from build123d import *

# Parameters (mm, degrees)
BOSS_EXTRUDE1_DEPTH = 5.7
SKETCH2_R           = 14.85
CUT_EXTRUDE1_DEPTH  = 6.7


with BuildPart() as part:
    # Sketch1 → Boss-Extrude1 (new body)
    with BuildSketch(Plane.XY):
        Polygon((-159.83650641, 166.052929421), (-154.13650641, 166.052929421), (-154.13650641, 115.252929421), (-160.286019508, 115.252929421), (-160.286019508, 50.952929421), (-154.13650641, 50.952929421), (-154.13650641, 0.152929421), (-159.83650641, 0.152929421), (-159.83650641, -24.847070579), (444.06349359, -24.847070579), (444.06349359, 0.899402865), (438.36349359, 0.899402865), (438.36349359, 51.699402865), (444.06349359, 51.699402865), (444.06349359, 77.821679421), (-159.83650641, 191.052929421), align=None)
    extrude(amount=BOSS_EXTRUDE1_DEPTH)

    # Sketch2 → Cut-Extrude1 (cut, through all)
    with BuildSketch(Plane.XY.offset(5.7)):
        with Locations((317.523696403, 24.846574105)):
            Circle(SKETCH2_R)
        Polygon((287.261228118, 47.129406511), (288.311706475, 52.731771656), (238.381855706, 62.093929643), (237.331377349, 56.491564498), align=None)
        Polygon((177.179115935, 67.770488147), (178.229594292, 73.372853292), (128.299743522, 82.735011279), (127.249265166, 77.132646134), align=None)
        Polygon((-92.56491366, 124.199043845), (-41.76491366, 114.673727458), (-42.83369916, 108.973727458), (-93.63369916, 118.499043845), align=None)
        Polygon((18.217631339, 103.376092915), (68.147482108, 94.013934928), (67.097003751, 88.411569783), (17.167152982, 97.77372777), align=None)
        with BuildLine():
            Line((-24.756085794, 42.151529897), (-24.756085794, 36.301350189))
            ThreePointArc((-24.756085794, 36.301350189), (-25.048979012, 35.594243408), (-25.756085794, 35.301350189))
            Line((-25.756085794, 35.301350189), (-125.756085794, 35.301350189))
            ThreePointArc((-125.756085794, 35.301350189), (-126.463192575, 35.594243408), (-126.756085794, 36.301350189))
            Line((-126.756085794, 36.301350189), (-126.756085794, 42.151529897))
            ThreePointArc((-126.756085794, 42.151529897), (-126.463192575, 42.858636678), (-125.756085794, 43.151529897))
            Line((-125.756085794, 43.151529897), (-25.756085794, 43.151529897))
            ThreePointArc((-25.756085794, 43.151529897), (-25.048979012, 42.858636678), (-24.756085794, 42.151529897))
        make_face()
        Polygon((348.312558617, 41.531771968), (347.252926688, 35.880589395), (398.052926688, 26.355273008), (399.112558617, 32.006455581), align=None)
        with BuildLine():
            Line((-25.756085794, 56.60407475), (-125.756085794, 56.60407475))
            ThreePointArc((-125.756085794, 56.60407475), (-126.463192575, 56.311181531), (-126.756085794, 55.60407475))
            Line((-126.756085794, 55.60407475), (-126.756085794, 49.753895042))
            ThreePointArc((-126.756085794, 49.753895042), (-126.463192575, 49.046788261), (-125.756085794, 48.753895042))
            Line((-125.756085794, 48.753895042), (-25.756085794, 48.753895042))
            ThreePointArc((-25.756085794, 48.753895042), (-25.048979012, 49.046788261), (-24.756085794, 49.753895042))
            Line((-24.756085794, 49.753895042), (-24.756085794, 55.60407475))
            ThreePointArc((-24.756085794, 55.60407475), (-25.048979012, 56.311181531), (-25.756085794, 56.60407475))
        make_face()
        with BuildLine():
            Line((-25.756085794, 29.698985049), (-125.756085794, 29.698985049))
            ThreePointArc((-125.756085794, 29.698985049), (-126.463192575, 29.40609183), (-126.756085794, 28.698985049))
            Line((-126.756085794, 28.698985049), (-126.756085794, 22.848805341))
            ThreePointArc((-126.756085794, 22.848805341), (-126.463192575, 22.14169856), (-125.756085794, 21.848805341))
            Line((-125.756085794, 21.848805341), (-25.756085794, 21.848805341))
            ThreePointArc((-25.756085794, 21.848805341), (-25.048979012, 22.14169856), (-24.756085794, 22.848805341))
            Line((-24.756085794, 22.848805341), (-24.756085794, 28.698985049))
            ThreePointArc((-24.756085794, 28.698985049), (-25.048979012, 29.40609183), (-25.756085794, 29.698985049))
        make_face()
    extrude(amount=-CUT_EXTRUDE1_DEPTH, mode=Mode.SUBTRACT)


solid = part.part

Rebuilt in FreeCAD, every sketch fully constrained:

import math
import FreeCAD as App
import Part
import Sketcher

V = App.Vector
Q = App.Units.Quantity

doc = App.newDocument("Part")
params = doc.addObject("Spreadsheet::Sheet", "Params")
for row, (alias, value) in enumerate([
    ("sketch1_height", "25 mm"),
    ("sketch1_width", "5.7 mm"),
    ("sketch1_width2", "603.9 mm"),
    ("sketch1_height2", "50.8 mm"),
    ("sketch1_height3", "64.3 mm"),
    ("pad1_length", "5.7 mm"),
    ("sketch2_radius", "1 mm"),
    ("sketch2_diameter", "29.7 mm"),
    ("sketch2_width", "100 mm"),
    ("sketch2_length", "5.7 mm"),
    ("sketch2_length2", "50.8 mm"),
], start=1):
    params.set(f"A{row}", alias)
    params.set(f"B{row}", "=" + value)
    params.setAlias(f"B{row}", alias)

body = doc.addObject("PartDesign::Body", "Body")

sketch1 = body.newObject("Sketcher::SketchObject", "Sketch")
sketch1.AttachmentSupport = (doc.getObject("XY_Plane"), [""])
sketch1.MapMode = "FlatFace"
sketch1.addGeometry([
    Part.LineSegment(V(-160, 166, 0), V(-154, 166, 0)),
    Part.LineSegment(V(-154, 166, 0), V(-154, 115, 0)),
    Part.LineSegment(V(-154, 115, 0), V(-160, 115, 0)),
    Part.LineSegment(V(-160, 115, 0), V(-160, 51, 0)),
    Part.LineSegment(V(-160, 51, 0), V(-154, 51, 0)),
    Part.LineSegment(V(-154, 51, 0), V(-154, 0, 0)),
    Part.LineSegment(V(-154, 0, 0), V(-160, 0, 0)),
    Part.LineSegment(V(-160, 0, 0), V(-160, -25, 0)),
    Part.LineSegment(V(-160, -25, 0), V(444, -25, 0)),
    Part.LineSegment(V(444, -25, 0), V(444, 1, 0)),
    Part.LineSegment(V(444, 1, 0), V(438, 1, 0)),
    Part.LineSegment(V(438, 1, 0), V(438, 52, 0)),
    Part.LineSegment(V(438, 52, 0), V(444, 52, 0)),
    Part.LineSegment(V(444, 52, 0), V(444, 78, 0)),
    Part.LineSegment(V(444, 78, 0), V(-160, 191, 0)),
    Part.LineSegment(V(-160, 191, 0), V(-160, 166, 0)),
], False)
sketch1.addConstraint([
    Sketcher.Constraint("Coincident", 0, 2, 1, 1),
    Sketcher.Constraint("Coincident", 1, 2, 2, 1),
    Sketcher.Constraint("Coincident", 2, 2, 3, 1),
    Sketcher.Constraint("Coincident", 3, 2, 4, 1),
    Sketcher.Constraint("Coincident", 4, 2, 5, 1),
    Sketcher.Constraint("Coincident", 5, 2, 6, 1),
    Sketcher.Constraint("Coincident", 6, 2, 7, 1),
    Sketcher.Constraint("Coincident", 7, 2, 8, 1),
    Sketcher.Constraint("Coincident", 8, 2, 9, 1),
    Sketcher.Constraint("Coincident", 9, 2, 10, 1),
    Sketcher.Constraint("Coincident", 10, 2, 11, 1),
    Sketcher.Constraint("Coincident", 11, 2, 12, 1),
    Sketcher.Constraint("Coincident", 12, 2, 13, 1),
    Sketcher.Constraint("Coincident", 13, 2, 14, 1),
    Sketcher.Constraint("Coincident", 14, 2, 15, 1),
    Sketcher.Constraint("Coincident", 15, 2, 0, 1),
    Sketcher.Constraint("Horizontal", 0),
    Sketcher.Constraint("Vertical", 1),
    Sketcher.Constraint("Horizontal", 2),
    Sketcher.Constraint("Vertical", 3),
    Sketcher.Constraint("Horizontal", 4),
    Sketcher.Constraint("Vertical", 5),
    Sketcher.Constraint("Horizontal", 6),
    Sketcher.Constraint("Vertical", 7),
    Sketcher.Constraint("Horizontal", 8),
    Sketcher.Constraint("Vertical", 9),
    Sketcher.Constraint("Horizontal", 10),
    Sketcher.Constraint("Vertical", 11),
    Sketcher.Constraint("Horizontal", 12),
    Sketcher.Constraint("Vertical", 13),
    Sketcher.Constraint("Vertical", 15),
    Sketcher.Constraint("Vertical", 1, 2, 4, 2),
    Sketcher.Constraint("Vertical", 9, 2, 12, 2),
    Sketcher.Constraint("Vertical", 7, 2, 14, 2),
    Sketcher.Constraint("Equal", 6, 10),
    Sketcher.Constraint("Equal", 1, 5),
    Sketcher.Constraint("Equal", 5, 11),
    Sketcher.Constraint("Equal", 7, 15),
    Sketcher.Constraint("DistanceY", 7, 2, 7, 1, Q("25 mm")),
    Sketcher.Constraint("DistanceX", 0, 1, 0, 2, Q("5.7 mm")),
    Sketcher.Constraint("DistanceX", 8, 1, 8, 2, Q("603.9 mm")),
    Sketcher.Constraint("DistanceY", 1, 2, 1, 1, Q("50.8 mm")),
    Sketcher.Constraint("DistanceY", 3, 2, 3, 1, Q("64.3 mm")),
    Sketcher.Constraint("DistanceX", 2, 2, 2, 1, Q("6.149513 mm")),
    Sketcher.Constraint("DistanceY", 9, 1, 9, 2, Q("25.746473 mm")),
    Sketcher.Constraint("DistanceY", 13, 1, 13, 2, Q("26.122277 mm")),
    Sketcher.Constraint("DistanceY", -1, 1, 0, 2, Q("166.052929 mm")),
    Sketcher.Constraint("DistanceX", 2, 2, -1, 1, Q("160.28602 mm")),
])
sketch1.setExpression("Constraints[38]", "Params.sketch1_height")
sketch1.setExpression("Constraints[39]", "Params.sketch1_width")
sketch1.setExpression("Constraints[40]", "Params.sketch1_width2")
sketch1.setExpression("Constraints[41]", "Params.sketch1_height2")
sketch1.setExpression("Constraints[42]", "Params.sketch1_height3")
pad1 = body.newObject("PartDesign::Pad", "Pad")
pad1.Profile = sketch1
pad1.setExpression("Length", "Params.pad1_length")

sketch2 = body.newObject("Sketcher::SketchObject", "Sketch001")
sketch2.AttachmentSupport = (doc.getObject("XY_Plane"), [""])
sketch2.MapMode = "FlatFace"
sketch2.AttachmentOffset = App.Placement(V(0, 0, 5.7), App.Rotation())
sketch2.addGeometry([
    Part.Circle(V(317.5, 24.8, 0), V(0, 0, 1), 14.8),
    Part.LineSegment(V(287.3, 47.1, 0), V(288.3, 52.7, 0)),
    Part.LineSegment(V(288.3, 52.7, 0), V(238.4, 62.1, 0)),
    Part.LineSegment(V(238.4, 62.1, 0), V(237.3, 56.5, 0)),
    Part.LineSegment(V(237.3, 56.5, 0), V(287.3, 47.1, 0)),
    Part.LineSegment(V(177.2, 67.8, 0), V(178.2, 73.4, 0)),
    Part.LineSegment(V(178.2, 73.4, 0), V(128.3, 82.7, 0)),
    Part.LineSegment(V(128.3, 82.7, 0), V(127.2, 77.1, 0)),
    Part.LineSegment(V(127.2, 77.1, 0), V(177.2, 67.8, 0)),
    Part.LineSegment(V(-41.8, 114.7, 0), V(-92.6, 124.2, 0)),
    Part.LineSegment(V(-92.6, 124.2, 0), V(-93.6, 118.5, 0)),
    Part.LineSegment(V(-93.6, 118.5, 0), V(-42.8, 109, 0)),
    Part.LineSegment(V(-42.8, 109, 0), V(-41.8, 114.7, 0)),
    Part.LineSegment(V(68.1, 94, 0), V(18.2, 103.4, 0)),
    Part.LineSegment(V(18.2, 103.4, 0), V(17.2, 97.8, 0)),
    Part.LineSegment(V(17.2, 97.8, 0), V(67.1, 88.4, 0)),
    Part.LineSegment(V(67.1, 88.4, 0), V(68.1, 94, 0)),
    Part.LineSegment(V(-24.8, 36.3, 0), V(-24.8, 42.2, 0)),
    Part.ArcOfCircle(Part.Circle(V(-25.8, 42.2, 0), V(0, 0, 1), 1), math.radians(0), math.radians(90)),
    Part.LineSegment(V(-25.8, 43.2, 0), V(-125.8, 43.2, 0)),
    Part.ArcOfCircle(Part.Circle(V(-125.8, 42.2, 0), V(0, 0, 1), 1), math.radians(90), math.radians(180)),
    Part.LineSegment(V(-126.8, 42.2, 0), V(-126.8, 36.3, 0)),
    Part.ArcOfCircle(Part.Circle(V(-125.8, 36.3, 0), V(0, 0, 1), 1), math.radians(-180), math.radians(-90)),
    Part.LineSegment(V(-125.8, 35.3, 0), V(-25.8, 35.3, 0)),
    Part.ArcOfCircle(Part.Circle(V(-25.8, 36.3, 0), V(0, 0, 1), 1), math.radians(-90), math.radians(0)),
    Part.LineSegment(V(348.3, 41.5, 0), V(347.3, 35.9, 0)),
    Part.LineSegment(V(347.3, 35.9, 0), V(398.1, 26.4, 0)),
    Part.LineSegment(V(398.1, 26.4, 0), V(399.1, 32, 0)),
    Part.LineSegment(V(399.1, 32, 0), V(348.3, 41.5, 0)),
    Part.LineSegment(V(-25.8, 56.6, 0), V(-125.8, 56.6, 0)),
    Part.ArcOfCircle(Part.Circle(V(-125.8, 55.6, 0), V(0, 0, 1), 1), math.radians(90), math.radians(180)),
    Part.LineSegment(V(-126.8, 55.6, 0), V(-126.8, 49.8, 0)),
    Part.ArcOfCircle(Part.Circle(V(-125.8, 49.8, 0), V(0, 0, 1), 1), math.radians(-180), math.radians(-90)),
    Part.LineSegment(V(-125.8, 48.8, 0), V(-25.8, 48.8, 0)),
    Part.ArcOfCircle(Part.Circle(V(-25.8, 49.8, 0), V(0, 0, 1), 1), math.radians(-90), math.radians(0)),
    Part.LineSegment(V(-24.8, 49.8, 0), V(-24.8, 55.6, 0)),
    Part.ArcOfCircle(Part.Circle(V(-25.8, 55.6, 0), V(0, 0, 1), 1), math.radians(0), math.radians(90)),
    Part.LineSegment(V(-25.8, 29.7, 0), V(-125.8, 29.7, 0)),
    Part.ArcOfCircle(Part.Circle(V(-125.8, 28.7, 0), V(0, 0, 1), 1), math.radians(90), math.radians(180)),
    Part.LineSegment(V(-126.8, 28.7, 0), V(-126.8, 22.8, 0)),
    Part.ArcOfCircle(Part.Circle(V(-125.8, 22.8, 0), V(0, 0, 1), 1), math.radians(-180), math.radians(-90)),
    Part.LineSegment(V(-125.8, 21.8, 0), V(-25.8, 21.8, 0)),
    Part.ArcOfCircle(Part.Circle(V(-25.8, 22.8, 0), V(0, 0, 1), 1), math.radians(-90), math.radians(0)),
    Part.LineSegment(V(-24.8, 22.8, 0), V(-24.8, 28.7, 0)),
    Part.ArcOfCircle(Part.Circle(V(-25.8, 28.7, 0), V(0, 0, 1), 1), math.radians(0), math.radians(90)),
], False)
sketch2.addConstraint([
    Sketcher.Constraint("Coincident", 1, 2, 2, 1),
    Sketcher.Constraint("Coincident", 2, 2, 3, 1),
    Sketcher.Constraint("Coincident", 3, 2, 4, 1),
    Sketcher.Constraint("Coincident", 4, 2, 1, 1),
    Sketcher.Constraint("Coincident", 5, 2, 6, 1),
    Sketcher.Constraint("Coincident", 6, 2, 7, 1),
    Sketcher.Constraint("Coincident", 7, 2, 8, 1),
    Sketcher.Constraint("Coincident", 8, 2, 5, 1),
    Sketcher.Constraint("Coincident", 9, 2, 10, 1),
    Sketcher.Constraint("Coincident", 10, 2, 11, 1),
    Sketcher.Constraint("Coincident", 11, 2, 12, 1),
    Sketcher.Constraint("Coincident", 12, 2, 9, 1),
    Sketcher.Constraint("Coincident", 13, 2, 14, 1),
    Sketcher.Constraint("Coincident", 14, 2, 15, 1),
    Sketcher.Constraint("Coincident", 15, 2, 16, 1),
    Sketcher.Constraint("Coincident", 16, 2, 13, 1),
    Sketcher.Constraint("Tangent", 17, 2, 18, 1),
    Sketcher.Constraint("Tangent", 18, 2, 19, 1),
    Sketcher.Constraint("Tangent", 19, 2, 20, 1),
    Sketcher.Constraint("Tangent", 20, 2, 21, 1),
    Sketcher.Constraint("Tangent", 21, 2, 22, 1),
    Sketcher.Constraint("Tangent", 22, 2, 23, 1),
    Sketcher.Constraint("Tangent", 23, 2, 24, 1),
    Sketcher.Constraint("Tangent", 24, 2, 17, 1),
    Sketcher.Constraint("Coincident", 25, 2, 26, 1),
    Sketcher.Constraint("Coincident", 26, 2, 27, 1),
    Sketcher.Constraint("Coincident", 27, 2, 28, 1),
    Sketcher.Constraint("Coincident", 28, 2, 25, 1),
    Sketcher.Constraint("Tangent", 29, 2, 30, 1),
    Sketcher.Constraint("Tangent", 30, 2, 31, 1),
    Sketcher.Constraint("Tangent", 31, 2, 32, 1),
    Sketcher.Constraint("Tangent", 32, 2, 33, 1),
    Sketcher.Constraint("Tangent", 33, 2, 34, 1),
    Sketcher.Constraint("Tangent", 34, 2, 35, 1),
    Sketcher.Constraint("Tangent", 35, 2, 36, 1),
    Sketcher.Constraint("Tangent", 36, 2, 29, 1),
    Sketcher.Constraint("Tangent", 37, 2, 38, 1),
    Sketcher.Constraint("Tangent", 38, 2, 39, 1),
    Sketcher.Constraint("Tangent", 39, 2, 40, 1),
    Sketcher.Constraint("Tangent", 40, 2, 41, 1),
    Sketcher.Constraint("Tangent", 41, 2, 42, 1),
    Sketcher.Constraint("Tangent", 42, 2, 43, 1),
    Sketcher.Constraint("Tangent", 43, 2, 44, 1),
    Sketcher.Constraint("Tangent", 44, 2, 37, 1),
    Sketcher.Constraint("Vertical", 17),
    Sketcher.Constraint("Horizontal", 19),
    Sketcher.Constraint("Vertical", 21),
    Sketcher.Constraint("Horizontal", 23),
    Sketcher.Constraint("Horizontal", 29),
    Sketcher.Constraint("Vertical", 31),
    Sketcher.Constraint("Horizontal", 33),
    Sketcher.Constraint("Vertical", 35),
    Sketcher.Constraint("Horizontal", 37),
    Sketcher.Constraint("Vertical", 39),
    Sketcher.Constraint("Horizontal", 41),
    Sketcher.Constraint("Vertical", 43),
    Sketcher.Constraint("Equal", 18, 20),
    Sketcher.Constraint("Equal", 20, 22),
    Sketcher.Constraint("Equal", 22, 24),
    Sketcher.Constraint("Equal", 24, 30),
    Sketcher.Constraint("Equal", 30, 32),
    Sketcher.Constraint("Equal", 32, 34),
    Sketcher.Constraint("Equal", 34, 36),
    Sketcher.Constraint("Equal", 36, 38),
    Sketcher.Constraint("Equal", 38, 40),
    Sketcher.Constraint("Equal", 40, 42),
    Sketcher.Constraint("Equal", 42, 44),
    Sketcher.Constraint("Perpendicular", 1, 2),
    Sketcher.Constraint("Perpendicular", 2, 3),
    Sketcher.Constraint("Perpendicular", 3, 4),
    Sketcher.Constraint("Perpendicular", 4, 5),
    Sketcher.Constraint("Perpendicular", 5, 6),
    Sketcher.Constraint("Perpendicular", 6, 7),
    Sketcher.Constraint("Perpendicular", 7, 8),
    Sketcher.Constraint("Parallel", 8, 9),
    Sketcher.Constraint("Perpendicular", 9, 10),
    Sketcher.Constraint("Perpendicular", 10, 11),
    Sketcher.Constraint("Perpendicular", 11, 12),
    Sketcher.Constraint("Perpendicular", 12, 13),
    Sketcher.Constraint("Perpendicular", 13, 14),
    Sketcher.Constraint("Perpendicular", 14, 15),
    Sketcher.Constraint("Perpendicular", 15, 16),
    Sketcher.Constraint("Parallel", 16, 25),
    Sketcher.Constraint("Perpendicular", 25, 26),
    Sketcher.Constraint("Perpendicular", 26, 27),
    Sketcher.Constraint("Perpendicular", 27, 28),
    Sketcher.Constraint("Vertical", 22, 3, 30, 3),
    Sketcher.Constraint("Vertical", 24, 3, 34, 3),
    Sketcher.Constraint("Vertical", 32, 3, 38, 3),
    Sketcher.Constraint("Vertical", 36, 3, 42, 3),
    Sketcher.Constraint("Equal", 21, 31),
    Sketcher.Constraint("Equal", 35, 39),
    Sketcher.Constraint("Equal", 3, 5),
    Sketcher.Constraint("Equal", 4, 6),
    Sketcher.Constraint("Equal", 8, 13),
    Sketcher.Constraint("Equal", 7, 14),
    Sketcher.Constraint("Equal", 11, 26),
    Sketcher.Constraint("Radius", 18, Q("1 mm")),
    Sketcher.Constraint("Diameter", 0, Q("29.7 mm")),
    Sketcher.Constraint("DistanceX", 19, 2, 19, 1, Q("100 mm")),
    Sketcher.Constraint("Distance", 1, Q("5.7 mm")),
    Sketcher.Constraint("Distance", 2, Q("50.8 mm")),
    Sketcher.Constraint("Angle", 1, Q("79.38 deg")),
    Sketcher.Constraint("DistanceY", 10, 2, 9, 2, Q("5.7 mm")),
    Sketcher.Constraint("DistanceX", 10, 2, 11, 2, Q("50.8 mm")),
    Sketcher.Constraint("DistanceY", 14, 2, 11, 2, Q("11.2 mm")),
    Sketcher.Constraint("DistanceY", 28, 2, 1, 2, Q("11.2 mm")),
    Sketcher.Constraint("DistanceY", 17, 1, 17, 2, Q("5.85018 mm")),
    Sketcher.Constraint("DistanceX", 10, 2, -1, 1, Q("93.633699 mm")),
    Sketcher.Constraint("DistanceY", 0, 3, 30, 3, Q("30.757501 mm")),
    Sketcher.Constraint("DistanceY", 18, 3, 2, 2, Q("19.9424 mm")),
    Sketcher.Constraint("DistanceX", 4, 2, 25, 2, Q("59.991699 mm")),
    Sketcher.Constraint("DistanceY", 0, 3, 26, 2, Q("1.508699 mm")),
    Sketcher.Constraint("DistanceY", 26, 2, 1, 2, Q("26.376499 mm")),
    Sketcher.Constraint("DistanceY", -1, 1, 18, 3, Q("42.15153 mm")),
    Sketcher.Constraint("DistanceX", -1, 1, 4, 2, Q("287.261228 mm")),
    Sketcher.Constraint("DistanceY", -1, 1, 6, 2, Q("82.735011 mm")),
    Sketcher.Constraint("DistanceX", -1, 1, 13, 2, Q("18.217631 mm")),
    Sketcher.Constraint("DistanceY", -1, 1, 15, 2, Q("88.41157 mm")),
    Sketcher.Constraint("DistanceY", 38, 3, 32, 3, Q("21.05491 mm")),
    Sketcher.Constraint("DistanceX", 1, 2, 0, 3, Q("29.21199 mm")),
    Sketcher.Constraint("DistanceX", 36, 3, 2, 2, Q("264.137941 mm")),
    Sketcher.Constraint("DistanceX", 5, 2, 2, 2, Q("60.152261 mm")),
])
sketch2.setExpression("Constraints[97]", "Params.sketch2_radius")
sketch2.setExpression("Constraints[98]", "Params.sketch2_diameter")
sketch2.setExpression("Constraints[99]", "Params.sketch2_width")
sketch2.setExpression("Constraints[100]", "Params.sketch2_length")
sketch2.setExpression("Constraints[101]", "Params.sketch2_length2")
pocket1 = body.newObject("PartDesign::Pocket", "Pocket")
pocket1.Profile = sketch2
pocket1.Type = "ThroughAll"

doc.recompute()
